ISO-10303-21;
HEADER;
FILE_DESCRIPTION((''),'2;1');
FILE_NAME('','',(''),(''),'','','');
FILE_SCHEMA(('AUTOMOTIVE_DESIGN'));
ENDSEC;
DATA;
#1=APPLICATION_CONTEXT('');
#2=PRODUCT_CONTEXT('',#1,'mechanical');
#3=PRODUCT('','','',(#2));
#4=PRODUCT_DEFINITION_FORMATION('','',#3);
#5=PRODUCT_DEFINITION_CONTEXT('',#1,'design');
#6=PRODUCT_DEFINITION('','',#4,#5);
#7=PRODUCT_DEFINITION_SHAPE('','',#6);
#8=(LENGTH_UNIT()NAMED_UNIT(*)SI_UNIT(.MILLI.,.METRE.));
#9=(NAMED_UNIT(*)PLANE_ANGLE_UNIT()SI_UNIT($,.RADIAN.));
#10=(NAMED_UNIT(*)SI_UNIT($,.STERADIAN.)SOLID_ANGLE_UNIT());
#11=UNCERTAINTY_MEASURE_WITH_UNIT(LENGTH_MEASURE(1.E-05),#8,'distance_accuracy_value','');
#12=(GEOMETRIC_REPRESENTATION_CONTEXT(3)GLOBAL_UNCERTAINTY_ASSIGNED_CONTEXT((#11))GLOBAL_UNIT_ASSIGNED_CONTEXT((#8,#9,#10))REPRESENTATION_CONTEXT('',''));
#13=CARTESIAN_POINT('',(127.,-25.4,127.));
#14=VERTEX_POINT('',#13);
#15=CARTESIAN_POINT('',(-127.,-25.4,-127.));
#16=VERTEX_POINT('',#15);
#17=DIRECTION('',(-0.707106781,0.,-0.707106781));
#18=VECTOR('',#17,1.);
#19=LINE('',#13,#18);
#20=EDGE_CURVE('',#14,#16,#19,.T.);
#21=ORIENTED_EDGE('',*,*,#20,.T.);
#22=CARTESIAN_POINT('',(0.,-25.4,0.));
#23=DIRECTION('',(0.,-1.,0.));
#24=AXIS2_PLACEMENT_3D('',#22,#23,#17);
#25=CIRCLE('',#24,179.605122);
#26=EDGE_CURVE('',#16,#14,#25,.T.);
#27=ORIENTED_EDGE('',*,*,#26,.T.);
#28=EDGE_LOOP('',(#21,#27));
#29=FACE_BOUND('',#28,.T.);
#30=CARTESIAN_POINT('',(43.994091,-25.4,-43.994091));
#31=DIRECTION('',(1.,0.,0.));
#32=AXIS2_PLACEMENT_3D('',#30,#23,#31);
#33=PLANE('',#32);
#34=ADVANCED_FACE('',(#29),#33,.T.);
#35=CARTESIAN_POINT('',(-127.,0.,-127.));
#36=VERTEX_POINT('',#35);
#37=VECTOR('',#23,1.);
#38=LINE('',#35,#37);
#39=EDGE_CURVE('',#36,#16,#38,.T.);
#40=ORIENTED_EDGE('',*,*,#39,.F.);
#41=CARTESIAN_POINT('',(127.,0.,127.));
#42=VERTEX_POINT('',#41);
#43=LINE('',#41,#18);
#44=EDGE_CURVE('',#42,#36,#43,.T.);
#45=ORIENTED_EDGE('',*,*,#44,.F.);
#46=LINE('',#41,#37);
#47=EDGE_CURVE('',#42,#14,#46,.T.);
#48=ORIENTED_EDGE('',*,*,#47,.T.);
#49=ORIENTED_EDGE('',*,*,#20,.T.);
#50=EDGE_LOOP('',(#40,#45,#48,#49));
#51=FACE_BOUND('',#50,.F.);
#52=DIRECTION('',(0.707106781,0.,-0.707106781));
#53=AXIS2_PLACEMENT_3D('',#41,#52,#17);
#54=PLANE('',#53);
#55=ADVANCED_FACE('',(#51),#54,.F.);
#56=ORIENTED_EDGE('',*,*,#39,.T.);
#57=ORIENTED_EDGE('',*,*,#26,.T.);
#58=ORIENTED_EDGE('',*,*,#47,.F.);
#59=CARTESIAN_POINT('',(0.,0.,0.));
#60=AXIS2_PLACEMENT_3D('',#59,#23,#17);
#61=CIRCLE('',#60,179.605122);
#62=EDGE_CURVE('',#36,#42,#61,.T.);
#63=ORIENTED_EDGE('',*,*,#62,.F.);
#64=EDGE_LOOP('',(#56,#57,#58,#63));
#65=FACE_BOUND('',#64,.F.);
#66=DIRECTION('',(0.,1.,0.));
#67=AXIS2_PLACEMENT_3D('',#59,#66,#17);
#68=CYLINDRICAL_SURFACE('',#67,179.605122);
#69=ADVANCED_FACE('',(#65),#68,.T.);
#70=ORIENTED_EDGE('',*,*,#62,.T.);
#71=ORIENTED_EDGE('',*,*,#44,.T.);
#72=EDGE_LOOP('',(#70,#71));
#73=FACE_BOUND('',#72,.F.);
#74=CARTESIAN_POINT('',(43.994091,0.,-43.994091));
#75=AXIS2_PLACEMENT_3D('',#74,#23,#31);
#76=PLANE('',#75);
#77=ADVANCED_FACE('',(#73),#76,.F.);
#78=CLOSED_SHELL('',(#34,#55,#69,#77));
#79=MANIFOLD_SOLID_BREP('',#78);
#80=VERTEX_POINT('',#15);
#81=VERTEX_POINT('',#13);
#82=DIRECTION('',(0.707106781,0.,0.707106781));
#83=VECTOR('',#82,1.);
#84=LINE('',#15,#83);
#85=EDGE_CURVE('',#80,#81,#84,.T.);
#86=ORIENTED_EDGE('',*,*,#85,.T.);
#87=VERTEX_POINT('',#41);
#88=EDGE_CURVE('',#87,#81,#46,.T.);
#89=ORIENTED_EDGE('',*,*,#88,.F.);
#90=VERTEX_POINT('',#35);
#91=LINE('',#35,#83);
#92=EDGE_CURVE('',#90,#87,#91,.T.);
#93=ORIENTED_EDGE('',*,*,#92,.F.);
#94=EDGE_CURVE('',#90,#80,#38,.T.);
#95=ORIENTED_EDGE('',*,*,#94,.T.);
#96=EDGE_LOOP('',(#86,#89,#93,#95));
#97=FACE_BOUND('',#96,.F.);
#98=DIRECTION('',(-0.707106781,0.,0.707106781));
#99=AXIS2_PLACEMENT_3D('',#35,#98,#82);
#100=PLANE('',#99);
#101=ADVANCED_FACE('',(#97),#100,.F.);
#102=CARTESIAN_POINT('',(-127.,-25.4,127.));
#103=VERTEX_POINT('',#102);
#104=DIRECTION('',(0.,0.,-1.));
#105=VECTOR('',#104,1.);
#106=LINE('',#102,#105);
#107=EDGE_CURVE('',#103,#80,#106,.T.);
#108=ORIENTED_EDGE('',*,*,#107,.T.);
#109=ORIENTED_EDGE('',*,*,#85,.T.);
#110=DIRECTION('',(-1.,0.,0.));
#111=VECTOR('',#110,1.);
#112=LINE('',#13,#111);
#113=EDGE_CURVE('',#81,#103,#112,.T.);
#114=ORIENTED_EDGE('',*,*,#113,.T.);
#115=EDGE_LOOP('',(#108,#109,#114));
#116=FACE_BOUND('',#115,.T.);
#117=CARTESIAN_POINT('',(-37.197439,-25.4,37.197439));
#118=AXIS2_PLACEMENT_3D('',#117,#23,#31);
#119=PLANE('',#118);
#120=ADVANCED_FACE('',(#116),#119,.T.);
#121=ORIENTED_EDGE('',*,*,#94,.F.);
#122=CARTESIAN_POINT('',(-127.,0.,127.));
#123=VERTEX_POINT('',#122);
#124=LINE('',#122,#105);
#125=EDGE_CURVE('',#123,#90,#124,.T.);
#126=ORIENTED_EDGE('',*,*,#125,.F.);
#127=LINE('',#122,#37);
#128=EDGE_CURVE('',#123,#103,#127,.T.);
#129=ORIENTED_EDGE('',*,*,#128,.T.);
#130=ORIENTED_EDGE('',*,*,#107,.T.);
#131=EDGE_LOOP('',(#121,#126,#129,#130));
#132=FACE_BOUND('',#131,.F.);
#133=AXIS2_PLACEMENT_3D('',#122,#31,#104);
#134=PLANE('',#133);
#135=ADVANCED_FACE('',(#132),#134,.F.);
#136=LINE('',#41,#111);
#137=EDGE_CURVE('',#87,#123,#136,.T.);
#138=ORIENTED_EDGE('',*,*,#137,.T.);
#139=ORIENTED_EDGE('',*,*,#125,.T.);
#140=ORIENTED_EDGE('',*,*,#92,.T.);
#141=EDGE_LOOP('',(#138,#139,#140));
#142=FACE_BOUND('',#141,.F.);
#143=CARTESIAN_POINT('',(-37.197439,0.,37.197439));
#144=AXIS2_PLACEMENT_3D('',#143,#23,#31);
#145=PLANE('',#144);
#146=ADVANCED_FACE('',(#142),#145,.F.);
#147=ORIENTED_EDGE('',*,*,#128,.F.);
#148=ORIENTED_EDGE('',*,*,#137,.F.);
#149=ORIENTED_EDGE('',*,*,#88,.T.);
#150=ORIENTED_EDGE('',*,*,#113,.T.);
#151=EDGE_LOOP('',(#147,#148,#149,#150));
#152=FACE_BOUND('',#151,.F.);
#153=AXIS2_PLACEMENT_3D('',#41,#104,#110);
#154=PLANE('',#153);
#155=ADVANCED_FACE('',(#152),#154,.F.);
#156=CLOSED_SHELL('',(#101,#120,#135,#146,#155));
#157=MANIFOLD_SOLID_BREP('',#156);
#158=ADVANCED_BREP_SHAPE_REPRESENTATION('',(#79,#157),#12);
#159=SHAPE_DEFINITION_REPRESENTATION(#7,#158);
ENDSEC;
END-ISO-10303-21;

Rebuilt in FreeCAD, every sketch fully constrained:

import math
import FreeCAD as App
import Part
import Sketcher

V = App.Vector
Q = App.Units.Quantity


def add_polygon(sketch, points):
    """Adds a closed chain of lines whose ends are joined by coincident constraints."""
    first, n = sketch.GeometryCount, len(points)
    for a, b in zip(points, points[1:] + points[:1]):
        sketch.addGeometry(Part.LineSegment(App.Vector(*a, 0), App.Vector(*b, 0)), False)
    for i in range(n):
        sketch.addConstraint(Sketcher.Constraint("Coincident", first + i, 2, first + (i + 1) % n, 1))

doc = App.newDocument("Part")
body = doc.addObject("PartDesign::Body", "Body")

# Sketch on XZ plane
sketch1 = body.newObject("Sketcher::SketchObject", "Sketch")
sketch1.AttachmentSupport = (doc.getObject("XZ_Plane"), [""])
sketch1.MapMode = "FlatFace"
add_polygon(sketch1, [(-127, -127), (127, 127), (-127, 127)])  # lines 0-2
sketch1.addConstraint([
    Sketcher.Constraint("Horizontal", 1),
    Sketcher.Constraint("Vertical", 2),
    Sketcher.Constraint("Symmetric", 0, 2, 2, 2, -1, 1),
    Sketcher.Constraint("Equal", 1, 2),
    Sketcher.Constraint("DistanceX", 1, 2, 1, 1, Q("10 in")),
])
pad1 = body.newObject("PartDesign::Pad", "Pad")
pad1.Profile = sketch1
pad1.Length = Q("1 in")
body2 = doc.addObject("PartDesign::Body", "Body001")

# Sketch on XZ plane
sketch2 = body2.newObject("Sketcher::SketchObject", "Sketch001")
sketch2.AttachmentSupport = (doc.getObject("XZ_Plane001"), [""])
sketch2.MapMode = "FlatFace"
sketch2.addGeometry([
    Part.ArcOfCircle(Part.Circle(V(0, 0, 0), V(0, 0, 1), 180), math.radians(-135), math.radians(45)),
    Part.LineSegment(V(127, 127, 0), V(-127, -127, 0)),
], False)
sketch2.addConstraint([
    Sketcher.Constraint("Coincident", 0, 1, 1, 2),
    Sketcher.Constraint("Coincident", 1, 1, 0, 2),
    Sketcher.Constraint("Coincident", 0, 3, -1, 1),
    Sketcher.Constraint("DistanceX", 0, 1, -1, 1, Q("5 in")),
    Sketcher.Constraint("DistanceY", 0, 1, -1, 1, Q("5 in")),
    Sketcher.Constraint("DistanceX", -1, 1, 1, 1, Q("5 in")),
])
pad2 = body2.newObject("PartDesign::Pad", "Pad001")
pad2.Profile = sketch2
pad2.Length = Q("1 in")

doc.recompute()
